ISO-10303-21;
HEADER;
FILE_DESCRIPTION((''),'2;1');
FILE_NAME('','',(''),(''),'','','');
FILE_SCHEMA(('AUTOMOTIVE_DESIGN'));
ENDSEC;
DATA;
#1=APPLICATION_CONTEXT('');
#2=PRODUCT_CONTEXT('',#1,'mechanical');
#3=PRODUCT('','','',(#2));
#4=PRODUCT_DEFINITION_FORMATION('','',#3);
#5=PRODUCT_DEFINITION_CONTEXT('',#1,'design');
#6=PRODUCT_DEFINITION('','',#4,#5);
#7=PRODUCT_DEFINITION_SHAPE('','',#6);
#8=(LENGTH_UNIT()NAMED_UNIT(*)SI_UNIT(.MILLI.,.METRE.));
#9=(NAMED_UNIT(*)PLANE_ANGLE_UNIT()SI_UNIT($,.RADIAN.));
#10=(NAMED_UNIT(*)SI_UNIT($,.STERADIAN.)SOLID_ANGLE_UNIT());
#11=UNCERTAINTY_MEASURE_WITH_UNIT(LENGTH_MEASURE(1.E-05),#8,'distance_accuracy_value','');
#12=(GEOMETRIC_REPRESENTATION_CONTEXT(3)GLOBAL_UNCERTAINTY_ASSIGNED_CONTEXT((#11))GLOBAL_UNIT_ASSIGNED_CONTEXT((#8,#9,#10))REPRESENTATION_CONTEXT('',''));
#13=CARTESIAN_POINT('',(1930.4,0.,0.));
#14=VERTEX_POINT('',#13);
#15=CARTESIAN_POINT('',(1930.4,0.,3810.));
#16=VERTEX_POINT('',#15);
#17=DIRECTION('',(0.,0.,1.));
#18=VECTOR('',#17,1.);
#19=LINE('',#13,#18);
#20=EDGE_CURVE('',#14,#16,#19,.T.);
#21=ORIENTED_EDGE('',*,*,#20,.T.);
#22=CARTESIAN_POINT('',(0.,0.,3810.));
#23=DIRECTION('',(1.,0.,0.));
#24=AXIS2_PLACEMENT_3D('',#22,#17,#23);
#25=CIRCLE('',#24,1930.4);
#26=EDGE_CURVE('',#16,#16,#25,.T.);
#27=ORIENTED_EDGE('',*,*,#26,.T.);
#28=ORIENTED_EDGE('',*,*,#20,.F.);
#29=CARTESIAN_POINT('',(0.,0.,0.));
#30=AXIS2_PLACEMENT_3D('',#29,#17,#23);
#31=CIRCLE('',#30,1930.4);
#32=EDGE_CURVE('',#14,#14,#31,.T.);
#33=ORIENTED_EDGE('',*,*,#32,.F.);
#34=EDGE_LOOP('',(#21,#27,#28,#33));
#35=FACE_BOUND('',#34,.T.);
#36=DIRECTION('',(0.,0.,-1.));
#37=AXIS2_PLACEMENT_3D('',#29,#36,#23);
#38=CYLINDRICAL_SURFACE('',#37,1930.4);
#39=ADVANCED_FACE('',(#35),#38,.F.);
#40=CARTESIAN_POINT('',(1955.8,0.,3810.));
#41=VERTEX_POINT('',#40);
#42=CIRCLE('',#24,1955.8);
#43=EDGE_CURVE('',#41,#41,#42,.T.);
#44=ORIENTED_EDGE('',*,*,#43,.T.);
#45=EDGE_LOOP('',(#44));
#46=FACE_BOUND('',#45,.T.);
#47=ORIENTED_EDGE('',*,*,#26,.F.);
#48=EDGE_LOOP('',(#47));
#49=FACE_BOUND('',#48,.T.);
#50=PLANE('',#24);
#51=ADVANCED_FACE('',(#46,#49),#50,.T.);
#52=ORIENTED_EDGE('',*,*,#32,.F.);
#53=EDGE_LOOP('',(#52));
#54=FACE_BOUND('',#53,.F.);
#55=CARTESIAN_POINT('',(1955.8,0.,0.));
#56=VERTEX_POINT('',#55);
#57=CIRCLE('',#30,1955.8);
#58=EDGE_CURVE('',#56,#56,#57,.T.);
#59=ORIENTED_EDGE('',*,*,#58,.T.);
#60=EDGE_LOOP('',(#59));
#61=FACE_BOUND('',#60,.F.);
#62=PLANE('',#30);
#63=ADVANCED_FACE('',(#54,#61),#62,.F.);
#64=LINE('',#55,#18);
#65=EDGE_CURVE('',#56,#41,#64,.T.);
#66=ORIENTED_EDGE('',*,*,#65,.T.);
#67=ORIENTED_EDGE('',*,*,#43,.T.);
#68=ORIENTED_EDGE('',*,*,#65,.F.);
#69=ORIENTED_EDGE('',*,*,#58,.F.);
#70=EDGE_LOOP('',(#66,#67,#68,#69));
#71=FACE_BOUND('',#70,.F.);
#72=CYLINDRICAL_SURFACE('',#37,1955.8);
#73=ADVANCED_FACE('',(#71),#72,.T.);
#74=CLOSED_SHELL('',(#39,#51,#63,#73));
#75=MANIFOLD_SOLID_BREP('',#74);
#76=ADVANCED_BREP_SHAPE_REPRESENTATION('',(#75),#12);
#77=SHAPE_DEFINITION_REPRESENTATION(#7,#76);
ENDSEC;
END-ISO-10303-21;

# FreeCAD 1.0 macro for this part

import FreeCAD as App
import Part
import Sketcher

V = App.Vector
Q = App.Units.Quantity

doc = App.newDocument("Part")
body = doc.addObject("PartDesign::Body", "Body")

# Sketch on XY plane
sketch1 = body.newObject("Sketcher::SketchObject", "Sketch")
sketch1.AttachmentSupport = (doc.getObject("XY_Plane"), [""])
sketch1.MapMode = "FlatFace"
sketch1.addGeometry([
    Part.Circle(V(0, 0, 0), V(0, 0, 1), 1956),
    Part.Circle(V(0, 0, 0), V(0, 0, 1), 1930),
], False)
sketch1.addConstraint([
    Sketcher.Constraint("Coincident", 0, 3, -1, 1),
    Sketcher.Constraint("Coincident", 1, 3, -1, 1),
    Sketcher.Constraint("Diameter", 0, Q("154 in")),
    Sketcher.Constraint("Diameter", 1, Q("152 in")),
])
pad1 = body.newObject("PartDesign::Pad", "Pad")
pad1.Profile = sketch1
pad1.Length = Q("150 in")

doc.recompute()
